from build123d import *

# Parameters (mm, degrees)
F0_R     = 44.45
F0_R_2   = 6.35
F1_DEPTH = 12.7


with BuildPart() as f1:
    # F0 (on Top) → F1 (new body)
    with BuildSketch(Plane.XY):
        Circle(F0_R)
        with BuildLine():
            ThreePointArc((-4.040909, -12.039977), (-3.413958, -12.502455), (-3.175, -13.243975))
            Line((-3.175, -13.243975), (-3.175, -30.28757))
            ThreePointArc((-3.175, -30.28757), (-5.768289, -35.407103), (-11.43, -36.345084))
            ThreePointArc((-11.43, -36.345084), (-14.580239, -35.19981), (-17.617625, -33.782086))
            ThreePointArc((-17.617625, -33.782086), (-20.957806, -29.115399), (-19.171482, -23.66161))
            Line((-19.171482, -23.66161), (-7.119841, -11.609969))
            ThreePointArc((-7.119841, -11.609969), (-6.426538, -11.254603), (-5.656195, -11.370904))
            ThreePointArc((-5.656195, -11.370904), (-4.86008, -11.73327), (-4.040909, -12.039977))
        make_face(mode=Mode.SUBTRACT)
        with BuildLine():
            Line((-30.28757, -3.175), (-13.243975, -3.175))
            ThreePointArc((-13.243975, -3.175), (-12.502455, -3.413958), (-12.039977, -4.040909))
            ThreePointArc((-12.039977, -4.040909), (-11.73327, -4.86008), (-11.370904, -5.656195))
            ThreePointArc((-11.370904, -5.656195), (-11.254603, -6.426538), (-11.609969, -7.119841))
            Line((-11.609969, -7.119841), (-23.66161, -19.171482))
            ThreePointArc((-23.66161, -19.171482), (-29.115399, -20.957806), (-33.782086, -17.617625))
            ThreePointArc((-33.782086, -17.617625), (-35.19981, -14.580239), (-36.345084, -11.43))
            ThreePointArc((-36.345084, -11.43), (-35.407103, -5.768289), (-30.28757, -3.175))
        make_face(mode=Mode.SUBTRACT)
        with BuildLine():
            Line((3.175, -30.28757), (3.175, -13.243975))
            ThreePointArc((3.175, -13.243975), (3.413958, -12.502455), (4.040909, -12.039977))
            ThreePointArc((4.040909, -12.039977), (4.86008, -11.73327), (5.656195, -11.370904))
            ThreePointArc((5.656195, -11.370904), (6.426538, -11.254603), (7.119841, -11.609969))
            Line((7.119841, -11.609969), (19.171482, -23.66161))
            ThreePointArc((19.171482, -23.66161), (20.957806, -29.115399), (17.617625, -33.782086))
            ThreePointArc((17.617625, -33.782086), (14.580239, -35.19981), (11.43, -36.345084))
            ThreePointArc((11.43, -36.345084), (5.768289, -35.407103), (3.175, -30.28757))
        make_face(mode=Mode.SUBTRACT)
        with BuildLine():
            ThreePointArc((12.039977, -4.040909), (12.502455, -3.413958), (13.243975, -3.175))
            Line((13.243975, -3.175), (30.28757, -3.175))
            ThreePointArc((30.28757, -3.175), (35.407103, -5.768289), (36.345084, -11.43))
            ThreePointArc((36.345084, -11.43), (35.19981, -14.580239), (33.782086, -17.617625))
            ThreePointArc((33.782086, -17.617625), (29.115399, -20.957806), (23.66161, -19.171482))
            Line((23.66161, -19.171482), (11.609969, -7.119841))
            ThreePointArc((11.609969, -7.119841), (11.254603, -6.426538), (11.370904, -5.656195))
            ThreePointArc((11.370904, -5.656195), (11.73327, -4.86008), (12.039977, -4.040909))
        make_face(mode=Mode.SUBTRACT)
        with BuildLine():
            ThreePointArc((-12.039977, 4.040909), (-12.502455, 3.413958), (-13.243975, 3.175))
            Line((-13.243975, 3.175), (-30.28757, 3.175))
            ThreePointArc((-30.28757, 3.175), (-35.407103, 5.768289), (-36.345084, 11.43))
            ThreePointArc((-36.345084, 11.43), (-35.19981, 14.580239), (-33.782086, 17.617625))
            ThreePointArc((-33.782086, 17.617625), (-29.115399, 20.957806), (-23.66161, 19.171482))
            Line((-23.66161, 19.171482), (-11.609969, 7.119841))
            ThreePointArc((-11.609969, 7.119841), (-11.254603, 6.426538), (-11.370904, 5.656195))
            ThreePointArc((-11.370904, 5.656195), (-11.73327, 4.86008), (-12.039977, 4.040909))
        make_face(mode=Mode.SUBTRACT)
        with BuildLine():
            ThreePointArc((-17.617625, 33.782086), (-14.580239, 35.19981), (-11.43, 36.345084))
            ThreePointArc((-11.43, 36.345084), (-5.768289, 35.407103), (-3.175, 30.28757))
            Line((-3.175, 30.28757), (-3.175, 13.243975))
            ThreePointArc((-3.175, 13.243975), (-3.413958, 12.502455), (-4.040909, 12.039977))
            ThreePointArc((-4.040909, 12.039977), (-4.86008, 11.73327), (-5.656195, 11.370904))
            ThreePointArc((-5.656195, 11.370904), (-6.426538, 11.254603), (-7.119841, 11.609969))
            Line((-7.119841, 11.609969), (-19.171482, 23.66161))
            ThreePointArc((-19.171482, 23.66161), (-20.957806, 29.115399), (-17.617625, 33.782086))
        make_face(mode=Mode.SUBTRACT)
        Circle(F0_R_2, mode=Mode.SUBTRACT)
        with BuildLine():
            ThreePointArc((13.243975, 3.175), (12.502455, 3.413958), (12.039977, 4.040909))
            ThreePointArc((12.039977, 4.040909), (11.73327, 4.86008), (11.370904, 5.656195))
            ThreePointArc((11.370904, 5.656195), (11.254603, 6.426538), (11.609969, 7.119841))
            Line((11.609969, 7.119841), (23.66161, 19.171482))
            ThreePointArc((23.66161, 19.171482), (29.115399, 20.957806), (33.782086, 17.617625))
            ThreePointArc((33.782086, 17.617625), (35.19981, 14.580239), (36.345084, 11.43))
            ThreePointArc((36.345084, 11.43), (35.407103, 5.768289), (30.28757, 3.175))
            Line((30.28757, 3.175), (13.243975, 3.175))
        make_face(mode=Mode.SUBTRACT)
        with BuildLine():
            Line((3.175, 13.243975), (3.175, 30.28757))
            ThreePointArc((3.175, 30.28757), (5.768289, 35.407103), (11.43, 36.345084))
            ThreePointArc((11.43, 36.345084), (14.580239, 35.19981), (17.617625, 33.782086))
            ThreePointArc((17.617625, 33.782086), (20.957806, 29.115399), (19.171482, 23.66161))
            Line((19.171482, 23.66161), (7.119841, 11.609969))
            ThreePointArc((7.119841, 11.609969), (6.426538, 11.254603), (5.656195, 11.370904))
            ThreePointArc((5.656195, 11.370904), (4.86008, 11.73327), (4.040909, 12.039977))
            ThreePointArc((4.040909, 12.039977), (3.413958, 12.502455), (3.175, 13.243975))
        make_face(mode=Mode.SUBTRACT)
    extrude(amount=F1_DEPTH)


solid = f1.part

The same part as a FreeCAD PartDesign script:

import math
import FreeCAD as App
import Part
import Sketcher
from FreeCAD import Vector
Q = App.Units.Quantity

doc = App.newDocument("Part")
params = doc.addObject("Spreadsheet::Sheet", "Params")
for row, (alias, value) in enumerate([
    ("sketch1_diameter", "3.5 in"),
    ("sketch1_diameter2", "0.5 in"),
    ("sketch1_radius", "0.0500001 in"),
    ("sketch1_radius2", "0.25 in"),
    ("sketch1_radius3", "0.2500001 in"),
    ("pad1_length", "0.5 in"),
], start=1):
    params.set(f"A{row}", alias)
    params.set(f"B{row}", "=" + value)
    params.setAlias(f"B{row}", alias)

body = doc.addObject("PartDesign::Body", "Body")

sketch1 = doc.addObject("Sketcher::SketchObject", "Sketch")
body.addObject(sketch1)
sketch1.AttachmentSupport = (doc.XY_Plane, [""])
sketch1.MapMode = "FlatFace"
sketch1.addGeometry(Part.Circle(Vector(0, 0, 0), Vector(0, 0, 1), 44.45), False)
sketch1.addGeometry(Part.ArcOfCircle(Part.Circle(Vector(-0.000045, -0.000104, 0), Vector(0, 0, 1), 12.699887), math.radians(-116.447018), math.radians(-108.552959)), False)
sketch1.addGeometry(Part.ArcOfCircle(Part.Circle(Vector(-4.445002, -13.243976, 0), Vector(0, 0, 1), 1.270002), math.radians(0.000038), math.radians(71.44694)), False)
sketch1.addGeometry(Part.LineSegment(Vector(-3.175, -13.243975, 0), Vector(-3.175, -30.28757, 0)), False)
sketch1.addGeometry(Part.ArcOfCircle(Part.Circle(Vector(-9.525001, -30.287569, 0), Vector(0, 0, 1), 6.350001), math.radians(-107.457596), math.radians(-0.000006)), False)
sketch1.addGeometry(Part.ArcOfCircle(Part.Circle(Vector(0.000057, 0.000141, 0), Vector(0, 0, 1), 38.100152), math.radians(-117.542376), math.radians(-107.457621)), False)
sketch1.addGeometry(Part.ArcOfCircle(Part.Circle(Vector(-14.681352, -28.151738, 0), Vector(0, 0, 1), 6.350001), math.radians(135.000012), math.radians(242.457587)), False)
sketch1.addGeometry(Part.LineSegment(Vector(-19.171482, -23.66161, 0), Vector(-7.119841, -11.609969, 0)), False)
sketch1.addGeometry(Part.ArcOfCircle(Part.Circle(Vector(-6.221815, -12.507992, 0), Vector(0, 0, 1), 1.269998), math.radians(63.55293), math.radians(135.000081)), False)
sketch1.addGeometry(Part.ArcOfCircle(Part.Circle(Vector(-30.287569, -9.525001, 0), Vector(0, 0, 1), 6.350001), math.radians(90.000006), math.radians(197.457596)), False)
sketch1.addGeometry(Part.LineSegment(Vector(-30.28757, -3.175, 0), Vector(-13.243975, -3.175, 0)), False)
sketch1.addGeometry(Part.ArcOfCircle(Part.Circle(Vector(-13.243976, -4.445002, 0), Vector(0, 0, 1), 1.270002), math.radians(18.55306), math.radians(89.999962)), False)
sketch1.addGeometry(Part.ArcOfCircle(Part.Circle(Vector(-0.000104, -0.000045, 0), Vector(0, 0, 1), 12.699887), math.radians(-161.447041), math.radians(-153.552982)), False)
sketch1.addGeometry(Part.ArcOfCircle(Part.Circle(Vector(-12.507992, -6.221815, 0), Vector(0, 0, 1), 1.269998), math.radians(-45.000081), math.radians(26.44707)), False)
sketch1.addGeometry(Part.LineSegment(Vector(-11.609969, -7.119841, 0), Vector(-23.66161, -19.171482, 0)), False)
sketch1.addGeometry(Part.ArcOfCircle(Part.Circle(Vector(-28.151738, -14.681352, 0), Vector(0, 0, 1), 6.350001), math.radians(-152.457587), math.radians(-45.000012)), False)
sketch1.addGeometry(Part.ArcOfCircle(Part.Circle(Vector(0.000141, 0.000057, 0), Vector(0, 0, 1), 38.100152), math.radians(-162.542379), math.radians(-152.457624)), False)
sketch1.addGeometry(Part.ArcOfCircle(Part.Circle(Vector(9.525001, -30.287569, 0), Vector(0, 0, 1), 6.350001), math.radians(-179.999994), math.radians(-72.542404)), False)
sketch1.addGeometry(Part.LineSegment(Vector(3.175, -30.28757, 0), Vector(3.175, -13.243975, 0)), False)
sketch1.addGeometry(Part.ArcOfCircle(Part.Circle(Vector(4.445002, -13.243976, 0), Vector(0, 0, 1), 1.270002), math.radians(108.55306), math.radians(179.999962)), False)
sketch1.addGeometry(Part.ArcOfCircle(Part.Circle(Vector(0.000045, -0.000104, 0), Vector(0, 0, 1), 12.699887), math.radians(-71.447041), math.radians(-63.552982)), False)
sketch1.addGeometry(Part.ArcOfCircle(Part.Circle(Vector(6.221815, -12.507992, 0), Vector(0, 0, 1), 1.269998), math.radians(44.999919), math.radians(116.44707)), False)
sketch1.addGeometry(Part.LineSegment(Vector(7.119841, -11.609969, 0), Vector(19.171482, -23.66161, 0)), False)
sketch1.addGeometry(Part.ArcOfCircle(Part.Circle(Vector(14.681352, -28.151738, 0), Vector(0, 0, 1), 6.350001), math.radians(-62.457587), math.radians(44.999988)), False)
sketch1.addGeometry(Part.ArcOfCircle(Part.Circle(Vector(-0.000057, 0.000141, 0), Vector(0, 0, 1), 38.100152), math.radians(-72.542379), math.radians(-62.457624)), False)
sketch1.addGeometry(Part.ArcOfCircle(Part.Circle(Vector(0.000104, -0.000045, 0), Vector(0, 0, 1), 12.699887), math.radians(-26.447018), math.radians(-18.552959)), False)
sketch1.addGeometry(Part.ArcOfCircle(Part.Circle(Vector(13.243976, -4.445002, 0), Vector(0, 0, 1), 1.270002), math.radians(90.000038), math.radians(161.44694)), False)
sketch1.addGeometry(Part.LineSegment(Vector(13.243975, -3.175, 0), Vector(30.28757, -3.175, 0)), False)
sketch1.addGeometry(Part.ArcOfCircle(Part.Circle(Vector(30.287569, -9.525001, 0), Vector(0, 0, 1), 6.350001), math.radians(-17.457596), math.radians(89.999994)), False)
sketch1.addGeometry(Part.ArcOfCircle(Part.Circle(Vector(-0.000141, 0.000057, 0), Vector(0, 0, 1), 38.100152), math.radians(-27.542376), math.radians(-17.457621)), False)
sketch1.addGeometry(Part.ArcOfCircle(Part.Circle(Vector(28.151738, -14.681352, 0), Vector(0, 0, 1), 6.350001), math.radians(-134.999988), math.radians(-27.542413)), False)
sketch1.addGeometry(Part.LineSegment(Vector(23.66161, -19.171482, 0), Vector(11.609969, -7.119841, 0)), False)
sketch1.addGeometry(Part.ArcOfCircle(Part.Circle(Vector(12.507992, -6.221815, 0), Vector(0, 0, 1), 1.269998), math.radians(153.55293), math.radians(225.000081)), False)
sketch1.addGeometry(Part.ArcOfCircle(Part.Circle(Vector(-0.000104, 0.000045, 0), Vector(0, 0, 1), 12.699887), math.radians(153.552982), math.radians(161.447041)), False)
sketch1.addGeometry(Part.ArcOfCircle(Part.Circle(Vector(-13.243976, 4.445002, 0), Vector(0, 0, 1), 1.270002), math.radians(-89.999962), math.radians(-18.55306)), False)
sketch1.addGeometry(Part.LineSegment(Vector(-13.243975, 3.175, 0), Vector(-30.28757, 3.175, 0)), False)
sketch1.addGeometry(Part.ArcOfCircle(Part.Circle(Vector(-30.287569, 9.525001, 0), Vector(0, 0, 1), 6.350001), math.radians(162.542404), math.radians(269.999994)), False)
sketch1.addGeometry(Part.ArcOfCircle(Part.Circle(Vector(0.000141, -0.000057, 0), Vector(0, 0, 1), 38.100152), math.radians(152.457624), math.radians(162.542379)), False)
sketch1.addGeometry(Part.ArcOfCircle(Part.Circle(Vector(-28.151738, 14.681352, 0), Vector(0, 0, 1), 6.350001), math.radians(45.000012), math.radians(152.457587)), False)
sketch1.addGeometry(Part.LineSegment(Vector(-23.66161, 19.171482, 0), Vector(-11.609969, 7.119841, 0)), False)
sketch1.addGeometry(Part.ArcOfCircle(Part.Circle(Vector(-12.507992, 6.221815, 0), Vector(0, 0, 1), 1.269998), math.radians(-26.44707), math.radians(45.000081)), False)
sketch1.addGeometry(Part.ArcOfCircle(Part.Circle(Vector(-14.681352, 28.151738, 0), Vector(0, 0, 1), 6.350001), math.radians(117.542413), math.radians(224.999988)), False)
sketch1.addGeometry(Part.ArcOfCircle(Part.Circle(Vector(0.000057, -0.000141, 0), Vector(0, 0, 1), 38.100152), math.radians(107.457621), math.radians(117.542376)), False)
sketch1.addGeometry(Part.ArcOfCircle(Part.Circle(Vector(-9.525001, 30.287569, 0), Vector(0, 0, 1), 6.350001), math.radians(0.000006), math.radians(107.457596)), False)
sketch1.addGeometry(Part.LineSegment(Vector(-3.175, 30.28757, 0), Vector(-3.175, 13.243975, 0)), False)
sketch1.addGeometry(Part.ArcOfCircle(Part.Circle(Vector(-4.445002, 13.243976, 0), Vector(0, 0, 1), 1.270002), math.radians(-71.44694), math.radians(-0.000038)), False)
sketch1.addGeometry(Part.ArcOfCircle(Part.Circle(Vector(-0.000045, 0.000104, 0), Vector(0, 0, 1), 12.699887), math.radians(108.552959), math.radians(116.447018)), False)
sketch1.addGeometry(Part.ArcOfCircle(Part.Circle(Vector(-6.221815, 12.507992, 0), Vector(0, 0, 1), 1.269998), math.radians(-135.000081), math.radians(-63.55293)), False)
sketch1.addGeometry(Part.LineSegment(Vector(-7.119841, 11.609969, 0), Vector(-19.171482, 23.66161, 0)), False)
sketch1.addGeometry(Part.Circle(Vector(0, 0, 0), Vector(0, 0, 1), 6.35), False)
sketch1.addGeometry(Part.LineSegment(Vector(30.28757, 3.175, 0), Vector(13.243975, 3.175, 0)), False)
sketch1.addGeometry(Part.ArcOfCircle(Part.Circle(Vector(13.243976, 4.445002, 0), Vector(0, 0, 1), 1.270002), math.radians(-161.44694), math.radians(-90.000038)), False)
sketch1.addGeometry(Part.ArcOfCircle(Part.Circle(Vector(0.000104, 0.000045, 0), Vector(0, 0, 1), 12.699887), math.radians(18.552959), math.radians(26.447018)), False)
sketch1.addGeometry(Part.ArcOfCircle(Part.Circle(Vector(12.507992, 6.221815, 0), Vector(0, 0, 1), 1.269998), math.radians(134.999919), math.radians(206.44707)), False)
sketch1.addGeometry(Part.LineSegment(Vector(11.609969, 7.119841, 0), Vector(23.66161, 19.171482, 0)), False)
sketch1.addGeometry(Part.ArcOfCircle(Part.Circle(Vector(28.151738, 14.681352, 0), Vector(0, 0, 1), 6.350001), math.radians(27.542413), math.radians(134.999988)), False)
sketch1.addGeometry(Part.ArcOfCircle(Part.Circle(Vector(-0.000141, -0.000057, 0), Vector(0, 0, 1), 38.100152), math.radians(17.457621), math.radians(27.542376)), False)
sketch1.addGeometry(Part.ArcOfCircle(Part.Circle(Vector(30.287569, 9.525001, 0), Vector(0, 0, 1), 6.350001), math.radians(-89.999994), math.radians(17.457596)), False)
sketch1.addGeometry(Part.ArcOfCircle(Part.Circle(Vector(4.445002, 13.243976, 0), Vector(0, 0, 1), 1.270002), math.radians(-179.999962), math.radians(-108.55306)), False)
sketch1.addGeometry(Part.LineSegment(Vector(3.175, 13.243975, 0), Vector(3.175, 30.28757, 0)), False)
sketch1.addGeometry(Part.ArcOfCircle(Part.Circle(Vector(9.525001, 30.287569, 0), Vector(0, 0, 1), 6.350001), math.radians(72.542404), math.radians(179.999994)), False)
sketch1.addGeometry(Part.ArcOfCircle(Part.Circle(Vector(-0.000057, -0.000141, 0), Vector(0, 0, 1), 38.100152), math.radians(62.457624), math.radians(72.542379)), False)
sketch1.addGeometry(Part.ArcOfCircle(Part.Circle(Vector(14.681352, 28.151738, 0), Vector(0, 0, 1), 6.350001), math.radians(-44.999988), math.radians(62.457587)), False)
sketch1.addGeometry(Part.LineSegment(Vector(19.171482, 23.66161, 0), Vector(7.119841, 11.609969, 0)), False)
sketch1.addGeometry(Part.ArcOfCircle(Part.Circle(Vector(6.221815, 12.507992, 0), Vector(0, 0, 1), 1.269998), math.radians(-116.44707), math.radians(-44.999919)), False)
sketch1.addGeometry(Part.ArcOfCircle(Part.Circle(Vector(0.000045, 0.000104, 0), Vector(0, 0, 1), 12.699887), math.radians(63.552982), math.radians(71.447041)), False)
sketch1.addConstraint(Sketcher.Constraint("Coincident", 1, 2, 2, 2))
sketch1.addConstraint(Sketcher.Constraint("Coincident", 2, 1, 3, 1))
sketch1.addConstraint(Sketcher.Constraint("Coincident", 3, 2, 4, 2))
sketch1.addConstraint(Sketcher.Constraint("Coincident", 4, 1, 5, 2))
sketch1.addConstraint(Sketcher.Constraint("Coincident", 5, 1, 6, 2))
sketch1.addConstraint(Sketcher.Constraint("Coincident", 6, 1, 7, 1))
sketch1.addConstraint(Sketcher.Constraint("Coincident", 7, 2, 8, 2))
sketch1.addConstraint(Sketcher.Constraint("Coincident", 8, 1, 1, 1))
sketch1.addConstraint(Sketcher.Constraint("Coincident", 9, 1, 10, 1))
sketch1.addConstraint(Sketcher.Constraint("Coincident", 10, 2, 11, 2))
sketch1.addConstraint(Sketcher.Constraint("Coincident", 11, 1, 12, 1))
sketch1.addConstraint(Sketcher.Constraint("Coincident", 12, 2, 13, 2))
sketch1.addConstraint(Sketcher.Constraint("Coincident", 13, 1, 14, 1))
sketch1.addConstraint(Sketcher.Constraint("Coincident", 14, 2, 15, 2))
sketch1.addConstraint(Sketcher.Constraint("Coincident", 15, 1, 16, 2))
sketch1.addConstraint(Sketcher.Constraint("Coincident", 16, 1, 9, 2))
sketch1.addConstraint(Sketcher.Constraint("Coincident", 17, 1, 18, 1))
sketch1.addConstraint(Sketcher.Constraint("Coincident", 18, 2, 19, 2))
sketch1.addConstraint(Sketcher.Constraint("Coincident", 19, 1, 20, 1))
sketch1.addConstraint(Sketcher.Constraint("Coincident", 20, 2, 21, 2))
sketch1.addConstraint(Sketcher.Constraint("Coincident", 21, 1, 22, 1))
sketch1.addConstraint(Sketcher.Constraint("Coincident", 22, 2, 23, 2))
sketch1.addConstraint(Sketcher.Constraint("Coincident", 23, 1, 24, 2))
sketch1.addConstraint(Sketcher.Constraint("Coincident", 24, 1, 17, 2))
sketch1.addConstraint(Sketcher.Constraint("Coincident", 25, 2, 26, 2))
sketch1.addConstraint(Sketcher.Constraint("Coincident", 26, 1, 27, 1))
sketch1.addConstraint(Sketcher.Constraint("Coincident", 27, 2, 28, 2))
sketch1.addConstraint(Sketcher.Constraint("Coincident", 28, 1, 29, 2))
sketch1.addConstraint(Sketcher.Constraint("Coincident", 29, 1, 30, 2))
sketch1.addConstraint(Sketcher.Constraint("Coincident", 30, 1, 31, 1))
sketch1.addConstraint(Sketcher.Constraint("Coincident", 31, 2, 32, 2))
sketch1.addConstraint(Sketcher.Constraint("Coincident", 32, 1, 25, 1))
sketch1.addConstraint(Sketcher.Constraint("Coincident", 33, 2, 34, 2))
sketch1.addConstraint(Sketcher.Constraint("Coincident", 34, 1, 35, 1))
sketch1.addConstraint(Sketcher.Constraint("Coincident", 35, 2, 36, 2))
sketch1.addConstraint(Sketcher.Constraint("Coincident", 36, 1, 37, 2))
sketch1.addConstraint(Sketcher.Constraint("Coincident", 37, 1, 38, 2))
sketch1.addConstraint(Sketcher.Constraint("Coincident", 38, 1, 39, 1))
sketch1.addConstraint(Sketcher.Constraint("Coincident", 39, 2, 40, 2))
sketch1.addConstraint(Sketcher.Constraint("Coincident", 40, 1, 33, 1))
sketch1.addConstraint(Sketcher.Constraint("Coincident", 41, 1, 42, 2))
sketch1.addConstraint(Sketcher.Constraint("Coincident", 42, 1, 43, 2))
sketch1.addConstraint(Sketcher.Constraint("Coincident", 43, 1, 44, 1))
sketch1.addConstraint(Sketcher.Constraint("Coincident", 44, 2, 45, 2))
sketch1.addConstraint(Sketcher.Constraint("Coincident", 45, 1, 46, 1))
sketch1.addConstraint(Sketcher.Constraint("Coincident", 46, 2, 47, 2))
sketch1.addConstraint(Sketcher.Constraint("Coincident", 47, 1, 48, 1))
sketch1.addConstraint(Sketcher.Constraint("Coincident", 48, 2, 41, 2))
sketch1.addConstraint(Sketcher.Constraint("Coincident", 50, 2, 51, 2))
sketch1.addConstraint(Sketcher.Constraint("Coincident", 51, 1, 52, 1))
sketch1.addConstraint(Sketcher.Constraint("Coincident", 52, 2, 53, 2))
sketch1.addConstraint(Sketcher.Constraint("Coincident", 53, 1, 54, 1))
sketch1.addConstraint(Sketcher.Constraint("Coincident", 54, 2, 55, 2))
sketch1.addConstraint(Sketcher.Constraint("Coincident", 55, 1, 56, 2))
sketch1.addConstraint(Sketcher.Constraint("Coincident", 56, 1, 57, 2))
sketch1.addConstraint(Sketcher.Constraint("Coincident", 57, 1, 50, 1))
sketch1.addConstraint(Sketcher.Constraint("Coincident", 58, 1, 59, 1))
sketch1.addConstraint(Sketcher.Constraint("Coincident", 59, 2, 60, 2))
sketch1.addConstraint(Sketcher.Constraint("Coincident", 60, 1, 61, 2))
sketch1.addConstraint(Sketcher.Constraint("Coincident", 61, 1, 62, 2))
sketch1.addConstraint(Sketcher.Constraint("Coincident", 62, 1, 63, 1))
sketch1.addConstraint(Sketcher.Constraint("Coincident", 63, 2, 64, 2))
sketch1.addConstraint(Sketcher.Constraint("Coincident", 64, 1, 65, 1))
sketch1.addConstraint(Sketcher.Constraint("Coincident", 65, 2, 58, 2))
sketch1.addConstraint(Sketcher.Constraint("Vertical", 3))
sketch1.addConstraint(Sketcher.Constraint("Horizontal", 10))
sketch1.addConstraint(Sketcher.Constraint("Vertical", 18))
sketch1.addConstraint(Sketcher.Constraint("Horizontal", 27))
sketch1.addConstraint(Sketcher.Constraint("Horizontal", 35))
sketch1.addConstraint(Sketcher.Constraint("Vertical", 44))
sketch1.addConstraint(Sketcher.Constraint("Horizontal", 50))
sketch1.addConstraint(Sketcher.Constraint("Vertical", 59))
sketch1.addConstraint(Sketcher.Constraint("Coincident", 0, 3, -1, 1))
sketch1.addConstraint(Sketcher.Constraint("Coincident", 49, 3, -1, 1))
sketch1.addConstraint(Sketcher.Constraint("Diameter", 0, Q("3.5 in")))
sketch1.addConstraint(Sketcher.Constraint("Diameter", 49, Q("0.5 in")))
sketch1.addConstraint(Sketcher.Constraint("Radius", 2, Q("0.0500001 in")))
sketch1.addConstraint(Sketcher.Constraint("Radius", 4, Q("0.25 in")))
sketch1.addConstraint(Sketcher.Constraint("Radius", 6, Q("0.2500001 in")))
sketch1.addConstraint(Sketcher.Constraint("Radius", 8, Q("0.0499999 in")))
sketch1.addConstraint(Sketcher.Constraint("Radius", 9, Q("0.25 in")))
sketch1.addConstraint(Sketcher.Constraint("Radius", 11, Q("0.0500001 in")))
sketch1.addConstraint(Sketcher.Constraint("Radius", 13, Q("0.0499999 in")))
sketch1.addConstraint(Sketcher.Constraint("Radius", 15, Q("0.2500001 in")))
sketch1.addConstraint(Sketcher.Constraint("Radius", 17, Q("0.25 in")))
sketch1.addConstraint(Sketcher.Constraint("Radius", 19, Q("0.0500001 in")))
sketch1.addConstraint(Sketcher.Constraint("Radius", 21, Q("0.0499999 in")))
sketch1.addConstraint(Sketcher.Constraint("Radius", 23, Q("0.2500001 in")))
sketch1.addConstraint(Sketcher.Constraint("Radius", 26, Q("0.0500001 in")))
sketch1.addConstraint(Sketcher.Constraint("Radius", 28, Q("0.25 in")))
sketch1.addConstraint(Sketcher.Constraint("Radius", 30, Q("0.2500001 in")))
sketch1.addConstraint(Sketcher.Constraint("Radius", 32, Q("0.0499999 in")))
sketch1.addConstraint(Sketcher.Constraint("Radius", 34, Q("0.0500001 in")))
sketch1.addConstraint(Sketcher.Constraint("Radius", 36, Q("0.25 in")))
sketch1.addConstraint(Sketcher.Constraint("Radius", 38, Q("0.2500001 in")))
sketch1.addConstraint(Sketcher.Constraint("Radius", 40, Q("0.0499999 in")))
sketch1.addConstraint(Sketcher.Constraint("Radius", 41, Q("0.2500001 in")))
sketch1.addConstraint(Sketcher.Constraint("Radius", 43, Q("0.25 in")))
sketch1.addConstraint(Sketcher.Constraint("Radius", 45, Q("0.0500001 in")))
sketch1.addConstraint(Sketcher.Constraint("Radius", 47, Q("0.0499999 in")))
sketch1.addConstraint(Sketcher.Constraint("Radius", 51, Q("0.0500001 in")))
sketch1.addConstraint(Sketcher.Constraint("Radius", 53, Q("0.0499999 in")))
sketch1.addConstraint(Sketcher.Constraint("Radius", 55, Q("0.2500001 in")))
sketch1.addConstraint(Sketcher.Constraint("Radius", 57, Q("0.25 in")))
sketch1.addConstraint(Sketcher.Constraint("Radius", 58, Q("0.0500001 in")))
sketch1.addConstraint(Sketcher.Constraint("Radius", 60, Q("0.25 in")))
sketch1.addConstraint(Sketcher.Constraint("Radius", 62, Q("0.2500001 in")))
sketch1.addConstraint(Sketcher.Constraint("Radius", 64, Q("0.0499999 in")))
sketch1.addConstraint(Sketcher.Constraint("DistanceX", 4, 1, -1, 1, Q("0.45 in")))
sketch1.addConstraint(Sketcher.Constraint("DistanceY", 16, 1, -1, 1, Q("0.45 in")))
sketch1.addConstraint(Sketcher.Constraint("DistanceX", -1, 1, 24, 1, Q("0.45 in")))
sketch1.addConstraint(Sketcher.Constraint("DistanceY", 28, 1, -1, 1, Q("0.45 in")))
sketch1.addConstraint(Sketcher.Constraint("DistanceY", -1, 1, 36, 1, Q("0.45 in")))
sketch1.addConstraint(Sketcher.Constraint("DistanceX", 42, 1, -1, 1, Q("0.45 in")))
sketch1.addConstraint(Sketcher.Constraint("DistanceY", -1, 1, 56, 1, Q("0.45 in")))
sketch1.addConstraint(Sketcher.Constraint("DistanceX", -1, 1, 60, 1, Q("0.45 in")))
sketch1.addConstraint(Sketcher.Constraint("DistanceX", 2, 3, -1, 1, Q("0.1750001 in")))
sketch1.addConstraint(Sketcher.Constraint("DistanceY", 9, 3, -1, 1, Q("0.375 in")))
sketch1.addConstraint(Sketcher.Constraint("DistanceX", -1, 1, 17, 3, Q("0.375 in")))
sketch1.addConstraint(Sketcher.Constraint("DistanceY", 26, 3, -1, 1, Q("0.1750001 in")))
sketch1.addConstraint(Sketcher.Constraint("DistanceY", -1, 1, 34, 3, Q("0.1750001 in")))
sketch1.addConstraint(Sketcher.Constraint("DistanceX", 43, 3, -1, 1, Q("0.375 in")))
sketch1.addConstraint(Sketcher.Constraint("DistanceY", -1, 1, 51, 3, Q("0.1750001 in")))
sketch1.addConstraint(Sketcher.Constraint("DistanceX", -1, 1, 58, 3, Q("0.1750001 in")))
sketch1.addConstraint(Sketcher.Constraint("Radius", 5, 38.100152))
sketch1.addConstraint(Sketcher.Constraint("Radius", 16, 38.100152))
sketch1.addConstraint(Sketcher.Constraint("Radius", 24, 38.100152))
sketch1.addConstraint(Sketcher.Constraint("Radius", 29, 38.100152))
sketch1.addConstraint(Sketcher.Constraint("Radius", 37, 38.100152))
sketch1.addConstraint(Sketcher.Constraint("Radius", 42, 38.100152))
sketch1.addConstraint(Sketcher.Constraint("Radius", 56, 38.100152))
sketch1.addConstraint(Sketcher.Constraint("Radius", 61, 38.100152))
sketch1.addConstraint(Sketcher.Constraint("Radius", 1, 12.699887))
sketch1.addConstraint(Sketcher.Constraint("Radius", 12, 12.699887))
sketch1.addConstraint(Sketcher.Constraint("Radius", 20, 12.699887))
sketch1.addConstraint(Sketcher.Constraint("Radius", 25, 12.699887))
sketch1.addConstraint(Sketcher.Constraint("Radius", 33, 12.699887))
sketch1.addConstraint(Sketcher.Constraint("Radius", 46, 12.699887))
sketch1.addConstraint(Sketcher.Constraint("Radius", 52, 12.699887))
sketch1.addConstraint(Sketcher.Constraint("Radius", 65, 12.699887))
sketch1.addConstraint(Sketcher.Constraint("DistanceX", 10, 1, 10, 2, 17.043595))
sketch1.addConstraint(Sketcher.Constraint("DistanceX", 27, 1, 27, 2, 17.043595))
sketch1.addConstraint(Sketcher.Constraint("DistanceX", 35, 2, 35, 1, 17.043595))
sketch1.addConstraint(Sketcher.Constraint("DistanceX", 50, 2, 50, 1, 17.043595))
sketch1.addConstraint(Sketcher.Constraint("DistanceY", 3, 2, 3, 1, 17.043595))
sketch1.addConstraint(Sketcher.Constraint("DistanceY", 18, 1, 18, 2, 17.043595))
sketch1.addConstraint(Sketcher.Constraint("DistanceY", 44, 2, 44, 1, 17.043595))
sketch1.addConstraint(Sketcher.Constraint("DistanceY", 59, 1, 59, 2, 17.043595))
sketch1.addConstraint(Sketcher.Constraint("DistanceY", 4, 3, -1, 1, 30.287569))
sketch1.addConstraint(Sketcher.Constraint("DistanceY", -1, 1, 5, 3, 0.000141))
sketch1.addConstraint(Sketcher.Constraint("DistanceY", 6, 3, -1, 1, 28.151738))
sketch1.addConstraint(Sketcher.Constraint("DistanceX", 9, 3, -1, 1, 30.287569))
sketch1.addConstraint(Sketcher.Constraint("DistanceX", 15, 3, -1, 1, 28.151738))
sketch1.addConstraint(Sketcher.Constraint("DistanceX", -1, 1, 16, 3, 0.000141))
sketch1.addConstraint(Sketcher.Constraint("DistanceY", 17, 3, -1, 1, 30.287569))
sketch1.addConstraint(Sketcher.Constraint("DistanceY", 23, 3, -1, 1, 28.151738))
sketch1.addConstraint(Sketcher.Constraint("DistanceY", -1, 1, 24, 3, 0.000141))
sketch1.addConstraint(Sketcher.Constraint("DistanceX", -1, 1, 28, 3, 30.287569))
sketch1.addConstraint(Sketcher.Constraint("DistanceX", 29, 3, -1, 1, 0.000141))
sketch1.addConstraint(Sketcher.Constraint("DistanceX", -1, 1, 30, 3, 28.151738))
sketch1.addConstraint(Sketcher.Constraint("DistanceX", 36, 3, -1, 1, 30.287569))
sketch1.addConstraint(Sketcher.Constraint("DistanceX", -1, 1, 37, 3, 0.000141))
sketch1.addConstraint(Sketcher.Constraint("DistanceX", 38, 3, -1, 1, 28.151738))
sketch1.addConstraint(Sketcher.Constraint("DistanceY", -1, 1, 41, 3, 28.151738))
sketch1.addConstraint(Sketcher.Constraint("DistanceY", 42, 3, -1, 1, 0.000141))
sketch1.addConstraint(Sketcher.Constraint("DistanceY", -1, 1, 43, 3, 30.287569))
sketch1.addConstraint(Sketcher.Constraint("DistanceX", -1, 1, 55, 3, 28.151738))
sketch1.addConstraint(Sketcher.Constraint("DistanceX", 56, 3, -1, 1, 0.000141))
sketch1.addConstraint(Sketcher.Constraint("DistanceX", -1, 1, 57, 3, 30.287569))
sketch1.addConstraint(Sketcher.Constraint("DistanceY", -1, 1, 60, 3, 30.287569))
sketch1.addConstraint(Sketcher.Constraint("DistanceY", 61, 3, -1, 1, 0.000141))
sketch1.addConstraint(Sketcher.Constraint("DistanceY", -1, 1, 62, 3, 28.151738))
sketch1.addConstraint(Sketcher.Constraint("DistanceX", 1, 2, -1, 1, 4.040909))
sketch1.addConstraint(Sketcher.Constraint("DistanceY", 3, 2, -1, 1, 30.28757))
sketch1.addConstraint(Sketcher.Constraint("DistanceX", 6, 1, -1, 1, 19.171482))
sketch1.addConstraint(Sketcher.Constraint("DistanceX", 7, 2, -1, 1, 7.119841))
sketch1.addConstraint(Sketcher.Constraint("DistanceY", 7, 2, -1, 1, 11.609969))
sketch1.addConstraint(Sketcher.Constraint("DistanceX", 9, 1, -1, 1, 30.28757))
sketch1.addConstraint(Sketcher.Constraint("DistanceY", 11, 1, -1, 1, 4.040909))
sketch1.addConstraint(Sketcher.Constraint("DistanceX", 13, 1, -1, 1, 11.609969))
sketch1.addConstraint(Sketcher.Constraint("DistanceY", 13, 1, -1, 1, 7.119841))
sketch1.addConstraint(Sketcher.Constraint("DistanceX", 14, 2, -1, 1, 23.66161))
sketch1.addConstraint(Sketcher.Constraint("DistanceY", 17, 1, -1, 1, 30.28757))
sketch1.addConstraint(Sketcher.Constraint("DistanceX", -1, 1, 19, 1, 4.040909))
sketch1.addConstraint(Sketcher.Constraint("DistanceX", -1, 1, 21, 1, 7.119841))
sketch1.addConstraint(Sketcher.Constraint("DistanceY", 21, 1, -1, 1, 11.609969))
sketch1.addConstraint(Sketcher.Constraint("DistanceY", 22, 2, -1, 1, 23.66161))
sketch1.addConstraint(Sketcher.Constraint("DistanceY", 25, 2, -1, 1, 4.040909))
sketch1.addConstraint(Sketcher.Constraint("DistanceX", -1, 1, 27, 2, 30.28757))
sketch1.addConstraint(Sketcher.Constraint("DistanceX", -1, 1, 30, 1, 23.66161))
sketch1.addConstraint(Sketcher.Constraint("DistanceX", -1, 1, 31, 2, 11.609969))
sketch1.addConstraint(Sketcher.Constraint("DistanceY", 31, 2, -1, 1, 7.119841))
sketch1.addConstraint(Sketcher.Constraint("DistanceY", -1, 1, 33, 2, 4.040909))
sketch1.addConstraint(Sketcher.Constraint("DistanceX", 35, 2, -1, 1, 30.28757))
sketch1.addConstraint(Sketcher.Constraint("DistanceX", 38, 1, -1, 1, 23.66161))
sketch1.addConstraint(Sketcher.Constraint("DistanceX", 39, 2, -1, 1, 11.609969))
sketch1.addConstraint(Sketcher.Constraint("DistanceY", -1, 1, 39, 2, 7.119841))
sketch1.addConstraint(Sketcher.Constraint("DistanceY", -1, 1, 43, 1, 30.28757))
sketch1.addConstraint(Sketcher.Constraint("DistanceX", 45, 1, -1, 1, 4.040909))
sketch1.addConstraint(Sketcher.Constraint("DistanceX", 47, 1, -1, 1, 7.119841))
sketch1.addConstraint(Sketcher.Constraint("DistanceY", -1, 1, 47, 1, 11.609969))
sketch1.addConstraint(Sketcher.Constraint("DistanceY", -1, 1, 48, 2, 23.66161))
sketch1.addConstraint(Sketcher.Constraint("DistanceY", -1, 1, 51, 1, 4.040909))
sketch1.addConstraint(Sketcher.Constraint("DistanceX", -1, 1, 53, 1, 11.609969))
sketch1.addConstraint(Sketcher.Constraint("DistanceY", -1, 1, 53, 1, 7.119841))
sketch1.addConstraint(Sketcher.Constraint("DistanceX", -1, 1, 54, 2, 23.66161))
sketch1.addConstraint(Sketcher.Constraint("DistanceX", -1, 1, 57, 1, 30.28757))
sketch1.addConstraint(Sketcher.Constraint("DistanceY", -1, 1, 59, 2, 30.28757))
sketch1.addConstraint(Sketcher.Constraint("DistanceX", -1, 1, 62, 1, 19.171482))
sketch1.addConstraint(Sketcher.Constraint("DistanceX", -1, 1, 63, 2, 7.119841))
sketch1.addConstraint(Sketcher.Constraint("DistanceY", -1, 1, 63, 2, 11.609969))
sketch1.addConstraint(Sketcher.Constraint("DistanceX", -1, 1, 65, 2, 4.040909))
sketch1.addConstraint(Sketcher.Constraint("DistanceY", 1, 3, -1, 1, 0.000104))
sketch1.addConstraint(Sketcher.Constraint("DistanceY", 2, 3, -1, 1, 13.243976))
sketch1.addConstraint(Sketcher.Constraint("DistanceX", 11, 3, -1, 1, 13.243976))
sketch1.addConstraint(Sketcher.Constraint("DistanceX", 12, 3, -1, 1, 0.000104))
sketch1.addConstraint(Sketcher.Constraint("DistanceY", 19, 3, -1, 1, 13.243976))
sketch1.addConstraint(Sketcher.Constraint("DistanceY", 20, 3, -1, 1, 0.000104))
sketch1.addConstraint(Sketcher.Constraint("DistanceX", -1, 1, 25, 3, 0.000104))
sketch1.addConstraint(Sketcher.Constraint("DistanceX", -1, 1, 26, 3, 13.243976))
sketch1.addConstraint(Sketcher.Constraint("DistanceX", 33, 3, -1, 1, 0.000104))
sketch1.addConstraint(Sketcher.Constraint("DistanceX", 34, 3, -1, 1, 13.243976))
sketch1.addConstraint(Sketcher.Constraint("DistanceY", -1, 1, 45, 3, 13.243976))
sketch1.addConstraint(Sketcher.Constraint("DistanceY", -1, 1, 46, 3, 0.000104))
sketch1.addConstraint(Sketcher.Constraint("DistanceX", -1, 1, 51, 3, 13.243976))
sketch1.addConstraint(Sketcher.Constraint("DistanceX", -1, 1, 52, 3, 0.000104))
sketch1.addConstraint(Sketcher.Constraint("DistanceY", -1, 1, 58, 3, 13.243976))
sketch1.addConstraint(Sketcher.Constraint("DistanceX", -1, 1, 64, 3, 6.221815))
sketch1.addConstraint(Sketcher.Constraint("DistanceX", 5, 1, -1, 1, 17.617625))
sketch1.addConstraint(Sketcher.Constraint("DistanceX", 8, 1, -1, 1, 5.656195))
sketch1.addConstraint(Sketcher.Constraint("DistanceX", 12, 2, -1, 1, 11.370904))
sketch1.addConstraint(Sketcher.Constraint("DistanceX", 15, 1, -1, 1, 33.782086))
sketch1.addConstraint(Sketcher.Constraint("DistanceX", -1, 1, 20, 2, 5.656195))
sketch1.addConstraint(Sketcher.Constraint("DistanceX", -1, 1, 23, 1, 17.617625))
sketch1.addConstraint(Sketcher.Constraint("DistanceX", -1, 1, 29, 1, 33.782086))
sketch1.addConstraint(Sketcher.Constraint("DistanceX", -1, 1, 32, 1, 11.370904))
sketch1.addConstraint(Sketcher.Constraint("DistanceX", 37, 1, -1, 1, 33.782086))
sketch1.addConstraint(Sketcher.Constraint("DistanceX", 40, 1, -1, 1, 11.370904))
sketch1.addConstraint(Sketcher.Constraint("DistanceX", 41, 1, -1, 1, 17.617625))
sketch1.addConstraint(Sketcher.Constraint("DistanceX", 46, 2, -1, 1, 5.656195))
sketch1.addConstraint(Sketcher.Constraint("DistanceX", -1, 1, 52, 2, 11.370904))
sketch1.addConstraint(Sketcher.Constraint("DistanceX", -1, 1, 55, 1, 33.782086))
sketch1.addConstraint(Sketcher.Constraint("DistanceX", -1, 1, 61, 1, 17.617625))
sketch1.addConstraint(Sketcher.Constraint("DistanceX", -1, 1, 64, 1, 5.656195))
sketch1.setExpression("Constraints[74]", "Params.sketch1_diameter")
sketch1.setExpression("Constraints[75]", "Params.sketch1_diameter2")
sketch1.setExpression("Constraints[76]", "Params.sketch1_radius")
sketch1.setExpression("Constraints[77]", "Params.sketch1_radius2")
sketch1.setExpression("Constraints[78]", "Params.sketch1_radius3")
pad1 = doc.addObject("PartDesign::Pad", "Pad")
body.addObject(pad1)
pad1.Profile = sketch1
pad1.setExpression("Length", "Params.pad1_length")

doc.recompute()
